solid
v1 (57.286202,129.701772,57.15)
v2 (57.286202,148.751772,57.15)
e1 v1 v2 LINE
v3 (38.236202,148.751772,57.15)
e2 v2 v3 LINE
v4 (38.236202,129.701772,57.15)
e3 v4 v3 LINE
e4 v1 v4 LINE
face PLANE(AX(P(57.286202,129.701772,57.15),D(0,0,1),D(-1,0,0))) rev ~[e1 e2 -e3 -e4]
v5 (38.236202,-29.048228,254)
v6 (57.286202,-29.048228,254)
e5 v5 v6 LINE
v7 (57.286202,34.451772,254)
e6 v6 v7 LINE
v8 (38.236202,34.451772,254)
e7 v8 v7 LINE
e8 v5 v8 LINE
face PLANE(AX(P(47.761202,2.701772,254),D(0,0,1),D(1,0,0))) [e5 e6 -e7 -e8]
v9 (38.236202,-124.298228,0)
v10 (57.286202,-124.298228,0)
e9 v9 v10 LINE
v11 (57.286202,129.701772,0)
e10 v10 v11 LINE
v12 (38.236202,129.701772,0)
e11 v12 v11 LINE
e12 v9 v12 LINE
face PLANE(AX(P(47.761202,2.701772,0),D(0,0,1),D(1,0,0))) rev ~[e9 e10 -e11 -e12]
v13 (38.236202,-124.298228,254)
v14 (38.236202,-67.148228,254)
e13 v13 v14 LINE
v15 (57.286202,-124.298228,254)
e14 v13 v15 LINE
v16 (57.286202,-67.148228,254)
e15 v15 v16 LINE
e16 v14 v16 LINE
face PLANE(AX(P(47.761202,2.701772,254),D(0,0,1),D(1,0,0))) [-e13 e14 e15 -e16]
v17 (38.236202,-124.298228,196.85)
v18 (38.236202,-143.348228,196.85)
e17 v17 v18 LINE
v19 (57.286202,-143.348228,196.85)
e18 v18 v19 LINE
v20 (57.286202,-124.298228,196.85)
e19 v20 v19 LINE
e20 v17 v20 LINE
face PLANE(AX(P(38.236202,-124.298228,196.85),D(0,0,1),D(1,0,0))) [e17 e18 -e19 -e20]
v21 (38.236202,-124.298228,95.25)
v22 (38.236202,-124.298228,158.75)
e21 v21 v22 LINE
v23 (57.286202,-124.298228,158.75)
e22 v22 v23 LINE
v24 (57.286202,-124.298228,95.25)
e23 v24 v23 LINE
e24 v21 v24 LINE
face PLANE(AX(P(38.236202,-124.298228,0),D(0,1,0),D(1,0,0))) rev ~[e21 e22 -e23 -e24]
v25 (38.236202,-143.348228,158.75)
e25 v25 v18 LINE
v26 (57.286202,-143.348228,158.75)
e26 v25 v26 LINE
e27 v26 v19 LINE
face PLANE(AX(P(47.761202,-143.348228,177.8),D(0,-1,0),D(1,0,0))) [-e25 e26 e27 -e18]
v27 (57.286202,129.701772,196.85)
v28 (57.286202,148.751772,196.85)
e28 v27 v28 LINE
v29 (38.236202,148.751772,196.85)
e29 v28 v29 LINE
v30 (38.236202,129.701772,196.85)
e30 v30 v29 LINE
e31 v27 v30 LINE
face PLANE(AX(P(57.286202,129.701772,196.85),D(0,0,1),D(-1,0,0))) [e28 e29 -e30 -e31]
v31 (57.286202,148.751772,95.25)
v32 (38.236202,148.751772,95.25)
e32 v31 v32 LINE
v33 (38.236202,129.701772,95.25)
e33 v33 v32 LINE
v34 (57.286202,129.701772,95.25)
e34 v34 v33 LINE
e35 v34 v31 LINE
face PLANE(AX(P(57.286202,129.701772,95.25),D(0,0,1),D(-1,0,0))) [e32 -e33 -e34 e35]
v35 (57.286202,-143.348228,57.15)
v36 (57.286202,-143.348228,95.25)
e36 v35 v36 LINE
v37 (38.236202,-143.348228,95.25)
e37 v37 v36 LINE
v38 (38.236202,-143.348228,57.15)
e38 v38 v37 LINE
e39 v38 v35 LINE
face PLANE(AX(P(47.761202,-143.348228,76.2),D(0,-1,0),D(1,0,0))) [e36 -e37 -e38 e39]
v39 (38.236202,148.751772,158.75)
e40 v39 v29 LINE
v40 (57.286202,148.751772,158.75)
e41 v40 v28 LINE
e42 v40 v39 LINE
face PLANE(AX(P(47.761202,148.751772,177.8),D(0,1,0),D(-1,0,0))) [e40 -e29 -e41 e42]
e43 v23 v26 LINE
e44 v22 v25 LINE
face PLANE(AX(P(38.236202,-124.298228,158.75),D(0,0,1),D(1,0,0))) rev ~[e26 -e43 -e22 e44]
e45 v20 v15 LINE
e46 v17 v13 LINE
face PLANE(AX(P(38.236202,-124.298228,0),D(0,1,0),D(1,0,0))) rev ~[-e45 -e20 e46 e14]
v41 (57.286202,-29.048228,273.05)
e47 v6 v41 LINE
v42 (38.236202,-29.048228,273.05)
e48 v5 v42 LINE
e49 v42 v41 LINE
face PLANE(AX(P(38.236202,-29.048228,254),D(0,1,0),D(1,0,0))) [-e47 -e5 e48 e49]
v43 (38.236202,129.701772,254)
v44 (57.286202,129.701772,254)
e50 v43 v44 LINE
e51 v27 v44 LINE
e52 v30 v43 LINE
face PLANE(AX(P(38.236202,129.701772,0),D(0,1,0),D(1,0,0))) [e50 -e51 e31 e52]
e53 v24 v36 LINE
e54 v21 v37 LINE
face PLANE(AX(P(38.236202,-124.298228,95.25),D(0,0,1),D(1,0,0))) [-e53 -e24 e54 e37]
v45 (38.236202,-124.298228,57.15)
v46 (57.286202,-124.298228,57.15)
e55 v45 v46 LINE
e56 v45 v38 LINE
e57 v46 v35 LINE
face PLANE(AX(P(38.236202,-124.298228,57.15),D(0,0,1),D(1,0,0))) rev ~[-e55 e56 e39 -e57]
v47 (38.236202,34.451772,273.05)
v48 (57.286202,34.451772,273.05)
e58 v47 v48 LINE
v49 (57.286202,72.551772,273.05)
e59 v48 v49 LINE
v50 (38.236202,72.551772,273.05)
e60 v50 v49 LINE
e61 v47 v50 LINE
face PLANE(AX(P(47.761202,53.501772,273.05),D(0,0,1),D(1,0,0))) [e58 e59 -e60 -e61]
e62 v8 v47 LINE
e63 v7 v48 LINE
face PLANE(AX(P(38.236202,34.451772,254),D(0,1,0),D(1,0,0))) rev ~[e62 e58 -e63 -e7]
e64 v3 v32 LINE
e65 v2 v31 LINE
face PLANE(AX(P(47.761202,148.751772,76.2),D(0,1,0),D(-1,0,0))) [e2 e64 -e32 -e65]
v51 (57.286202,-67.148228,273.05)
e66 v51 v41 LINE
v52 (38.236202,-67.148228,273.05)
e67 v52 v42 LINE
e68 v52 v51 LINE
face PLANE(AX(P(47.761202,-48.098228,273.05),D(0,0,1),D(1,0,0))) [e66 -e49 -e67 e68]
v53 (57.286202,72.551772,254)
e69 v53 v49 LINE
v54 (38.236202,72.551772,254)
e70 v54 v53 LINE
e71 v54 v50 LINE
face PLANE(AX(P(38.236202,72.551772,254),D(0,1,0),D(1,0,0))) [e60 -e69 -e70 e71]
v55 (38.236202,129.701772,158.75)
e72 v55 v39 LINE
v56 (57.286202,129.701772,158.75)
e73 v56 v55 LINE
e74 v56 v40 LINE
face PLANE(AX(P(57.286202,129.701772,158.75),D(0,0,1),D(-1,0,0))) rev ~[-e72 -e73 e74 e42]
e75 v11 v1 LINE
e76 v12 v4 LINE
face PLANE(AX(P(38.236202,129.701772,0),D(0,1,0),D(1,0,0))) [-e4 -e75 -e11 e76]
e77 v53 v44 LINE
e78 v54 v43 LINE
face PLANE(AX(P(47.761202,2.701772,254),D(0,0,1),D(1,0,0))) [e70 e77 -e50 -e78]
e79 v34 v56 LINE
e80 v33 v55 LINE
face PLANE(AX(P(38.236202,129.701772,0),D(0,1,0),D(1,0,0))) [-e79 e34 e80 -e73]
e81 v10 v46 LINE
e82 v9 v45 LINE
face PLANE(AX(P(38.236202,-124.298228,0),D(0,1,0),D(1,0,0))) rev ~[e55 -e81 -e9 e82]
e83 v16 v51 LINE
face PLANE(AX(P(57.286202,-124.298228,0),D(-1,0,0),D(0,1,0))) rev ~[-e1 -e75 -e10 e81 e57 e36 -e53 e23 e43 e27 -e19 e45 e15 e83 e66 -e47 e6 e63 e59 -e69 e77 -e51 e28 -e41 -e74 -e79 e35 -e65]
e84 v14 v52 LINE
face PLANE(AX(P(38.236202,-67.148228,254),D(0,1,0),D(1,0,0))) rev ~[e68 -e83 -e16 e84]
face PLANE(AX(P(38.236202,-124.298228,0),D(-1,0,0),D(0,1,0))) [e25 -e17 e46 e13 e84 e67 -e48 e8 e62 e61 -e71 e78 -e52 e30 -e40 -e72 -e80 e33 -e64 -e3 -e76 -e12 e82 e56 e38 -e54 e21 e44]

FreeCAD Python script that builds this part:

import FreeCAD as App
import Part
import Sketcher

V = App.Vector
Q = App.Units.Quantity


def add_polygon(sketch, points):
    """Adds a closed chain of lines whose ends are joined by coincident constraints."""
    first, n = sketch.GeometryCount, len(points)
    for a, b in zip(points, points[1:] + points[:1]):
        sketch.addGeometry(Part.LineSegment(App.Vector(*a, 0), App.Vector(*b, 0)), False)
    for i in range(n):
        sketch.addConstraint(Sketcher.Constraint("Coincident", first + i, 2, first + (i + 1) % n, 1))

doc = App.newDocument("Part")
params = doc.addObject("Spreadsheet::Sheet", "Params")
for row, (alias, value) in enumerate([
    ("sketch1_height", "10 in"),
    ("sketch1_width", "0.75 in"),
    ("pad1_length", "10 in"),
    ("sketch2_height", "1.5 in"),
    ("sketch2_width", "0.75 in"),
    ("pad2_length", "0.75 in"),
    ("sketch3_height", "1.5 in"),
    ("sketch3_width", "0.75 in"),
    ("pad3_length", "0.75 in"),
    ("sketch4_height", "1.5 in"),
    ("sketch4_width", "0.75 in"),
    ("pad4_length", "0.75 in"),
], start=1):
    params.set(f"A{row}", alias)
    params.set(f"B{row}", "=" + value)
    params.setAlias(f"B{row}", alias)

body = doc.addObject("PartDesign::Body", "Body")

sketch1 = body.newObject("Sketcher::SketchObject", "Sketch")
sketch1.AttachmentSupport = (doc.getObject("XY_Plane"), [""])
sketch1.MapMode = "FlatFace"
add_polygon(sketch1, [(38, 130), (38, -124), (57, -124), (57, 130)])
sketch1.addConstraint(Sketcher.Constraint("Vertical", 0))
sketch1.addConstraint(Sketcher.Constraint("Horizontal", 1))
sketch1.addConstraint(Sketcher.Constraint("Vertical", 2))
sketch1.addConstraint(Sketcher.Constraint("Horizontal", 3))
sketch1.addConstraint(Sketcher.Constraint("DistanceY", 0, 2, 0, 1, Q("10 in")))
sketch1.addConstraint(Sketcher.Constraint("DistanceX", 1, 1, 1, 2, Q("0.75 in")))
sketch1.addConstraint(Sketcher.Constraint("DistanceY", -1, 1, 2, 2, 129.701772))
sketch1.addConstraint(Sketcher.Constraint("DistanceX", -1, 1, 0, 2, 38.236202))
sketch1.setExpression("Constraints[8]", "Params.sketch1_height")
sketch1.setExpression("Constraints[9]", "Params.sketch1_width")
pad1 = body.newObject("PartDesign::Pad", "Pad")
pad1.Profile = sketch1
pad1.setExpression("Length", "Params.pad1_length")

sketch2 = body.newObject("Sketcher::SketchObject", "Sketch001")
sketch2.AttachmentSupport = (doc.getObject("XZ_Plane"), [""])
sketch2.MapMode = "FlatFace"
sketch2.AttachmentOffset = App.Placement(V(0, 0, 124.298228), App.Rotation())
add_polygon(sketch2, [(38, 95), (38, 57), (57, 57), (57, 95)])
add_polygon(sketch2, [(38, 197), (38, 159), (57, 159), (57, 197)])
sketch2.addConstraint(Sketcher.Constraint("Vertical", 0))
sketch2.addConstraint(Sketcher.Constraint("Horizontal", 1))
sketch2.addConstraint(Sketcher.Constraint("Vertical", 2))
sketch2.addConstraint(Sketcher.Constraint("Horizontal", 3))
sketch2.addConstraint(Sketcher.Constraint("Vertical", 4))
sketch2.addConstraint(Sketcher.Constraint("Horizontal", 5))
sketch2.addConstraint(Sketcher.Constraint("Vertical", 6))
sketch2.addConstraint(Sketcher.Constraint("Horizontal", 7))
sketch2.addConstraint(Sketcher.Constraint("Vertical", 3, 2, 4, 2))
sketch2.addConstraint(Sketcher.Constraint("Vertical", 2, 2, 5, 2))
sketch2.addConstraint(Sketcher.Constraint("Equal", 2, 4))
sketch2.addConstraint(Sketcher.Constraint("DistanceY", 0, 2, 0, 1, Q("1.5 in")))
sketch2.addConstraint(Sketcher.Constraint("DistanceY", 0, 2, 4, 2, Q("4 in")))
sketch2.addConstraint(Sketcher.Constraint("DistanceX", 1, 1, 1, 2, Q("0.75 in")))
sketch2.addConstraint(Sketcher.Constraint("DistanceY", -1, 1, 0, 2, Q("2.25 in")))
sketch2.addConstraint(Sketcher.Constraint("DistanceX", -1, 1, 0, 2, 38.236202))
sketch2.setExpression("Constraints[19]", "Params.sketch2_height")
sketch2.setExpression("Constraints[21]", "Params.sketch2_width")
pad2 = body.newObject("PartDesign::Pad", "Pad001")
pad2.Profile = sketch2
pad2.setExpression("Length", "Params.pad2_length")

sketch3 = body.newObject("Sketcher::SketchObject", "Sketch002")
sketch3.AttachmentSupport = (doc.getObject("XY_Plane"), [""])
sketch3.MapMode = "FlatFace"
sketch3.AttachmentOffset = App.Placement(V(0, 0, 10 * 25.4), App.Rotation())
add_polygon(sketch3, [(38, 73), (38, 34), (57, 34), (57, 73)])
add_polygon(sketch3, [(38, -29), (38, -67), (57, -67), (57, -29)])
sketch3.addConstraint(Sketcher.Constraint("Vertical", 0))
sketch3.addConstraint(Sketcher.Constraint("Horizontal", 1))
sketch3.addConstraint(Sketcher.Constraint("Vertical", 2))
sketch3.addConstraint(Sketcher.Constraint("Horizontal", 3))
sketch3.addConstraint(Sketcher.Constraint("Vertical", 4))
sketch3.addConstraint(Sketcher.Constraint("Horizontal", 5))
sketch3.addConstraint(Sketcher.Constraint("Vertical", 6))
sketch3.addConstraint(Sketcher.Constraint("Horizontal", 7))
sketch3.addConstraint(Sketcher.Constraint("Vertical", 3, 2, 4, 2))
sketch3.addConstraint(Sketcher.Constraint("Vertical", 2, 2, 5, 2))
sketch3.addConstraint(Sketcher.Constraint("Equal", 2, 4))
sketch3.addConstraint(Sketcher.Constraint("DistanceY", 0, 2, 0, 1, Q("1.5 in")))
sketch3.addConstraint(Sketcher.Constraint("DistanceY", 4, 2, 0, 2, Q("4 in")))
sketch3.addConstraint(Sketcher.Constraint("DistanceX", 1, 1, 1, 2, Q("0.75 in")))
sketch3.addConstraint(Sketcher.Constraint("DistanceY", -1, 1, 0, 2, 34.451772))
sketch3.addConstraint(Sketcher.Constraint("DistanceX", -1, 1, 0, 2, 38.236202))
sketch3.setExpression("Constraints[19]", "Params.sketch3_height")
sketch3.setExpression("Constraints[21]", "Params.sketch3_width")
pad3 = body.newObject("PartDesign::Pad", "Pad002")
pad3.Profile = sketch3
pad3.setExpression("Length", "Params.pad3_length")

sketch4 = body.newObject("Sketcher::SketchObject", "Sketch003")
sketch4.AttachmentSupport = (doc.getObject("XZ_Plane"), [""])
sketch4.MapMode = "FlatFace"
sketch4.AttachmentOffset = App.Placement(V(0, 0, -129.701772), App.Rotation())
add_polygon(sketch4, [(57, 95), (57, 57), (38, 57), (38, 95)])
add_polygon(sketch4, [(57, 197), (57, 159), (38, 159), (38, 197)])
sketch4.addConstraint(Sketcher.Constraint("Vertical", 0))
sketch4.addConstraint(Sketcher.Constraint("Horizontal", 1))
sketch4.addConstraint(Sketcher.Constraint("Vertical", 2))
sketch4.addConstraint(Sketcher.Constraint("Horizontal", 3))
sketch4.addConstraint(Sketcher.Constraint("Vertical", 4))
sketch4.addConstraint(Sketcher.Constraint("Horizontal", 5))
sketch4.addConstraint(Sketcher.Constraint("Vertical", 6))
sketch4.addConstraint(Sketcher.Constraint("Horizontal", 7))
sketch4.addConstraint(Sketcher.Constraint("Vertical", 3, 2, 4, 2))
sketch4.addConstraint(Sketcher.Constraint("Vertical", 2, 2, 5, 2))
sketch4.addConstraint(Sketcher.Constraint("Equal", 2, 4))
sketch4.addConstraint(Sketcher.Constraint("DistanceY", 0, 2, 0, 1, Q("1.5 in")))
sketch4.addConstraint(Sketcher.Constraint("DistanceY", 0, 2, 4, 2, Q("4 in")))
sketch4.addConstraint(Sketcher.Constraint("DistanceX", 1, 2, 1, 1, Q("0.75 in")))
sketch4.addConstraint(Sketcher.Constraint("DistanceY", -1, 1, 0, 2, Q("2.25 in")))
sketch4.addConstraint(Sketcher.Constraint("DistanceX", -1, 1, 0, 2, 57.286202))
sketch4.setExpression("Constraints[19]", "Params.sketch4_height")
sketch4.setExpression("Constraints[21]", "Params.sketch4_width")
pad4 = body.newObject("PartDesign::Pad", "Pad003")
pad4.Profile = sketch4
pad4.setExpression("Length", "Params.pad4_length")
pad4.Reversed = True

doc.recompute()
